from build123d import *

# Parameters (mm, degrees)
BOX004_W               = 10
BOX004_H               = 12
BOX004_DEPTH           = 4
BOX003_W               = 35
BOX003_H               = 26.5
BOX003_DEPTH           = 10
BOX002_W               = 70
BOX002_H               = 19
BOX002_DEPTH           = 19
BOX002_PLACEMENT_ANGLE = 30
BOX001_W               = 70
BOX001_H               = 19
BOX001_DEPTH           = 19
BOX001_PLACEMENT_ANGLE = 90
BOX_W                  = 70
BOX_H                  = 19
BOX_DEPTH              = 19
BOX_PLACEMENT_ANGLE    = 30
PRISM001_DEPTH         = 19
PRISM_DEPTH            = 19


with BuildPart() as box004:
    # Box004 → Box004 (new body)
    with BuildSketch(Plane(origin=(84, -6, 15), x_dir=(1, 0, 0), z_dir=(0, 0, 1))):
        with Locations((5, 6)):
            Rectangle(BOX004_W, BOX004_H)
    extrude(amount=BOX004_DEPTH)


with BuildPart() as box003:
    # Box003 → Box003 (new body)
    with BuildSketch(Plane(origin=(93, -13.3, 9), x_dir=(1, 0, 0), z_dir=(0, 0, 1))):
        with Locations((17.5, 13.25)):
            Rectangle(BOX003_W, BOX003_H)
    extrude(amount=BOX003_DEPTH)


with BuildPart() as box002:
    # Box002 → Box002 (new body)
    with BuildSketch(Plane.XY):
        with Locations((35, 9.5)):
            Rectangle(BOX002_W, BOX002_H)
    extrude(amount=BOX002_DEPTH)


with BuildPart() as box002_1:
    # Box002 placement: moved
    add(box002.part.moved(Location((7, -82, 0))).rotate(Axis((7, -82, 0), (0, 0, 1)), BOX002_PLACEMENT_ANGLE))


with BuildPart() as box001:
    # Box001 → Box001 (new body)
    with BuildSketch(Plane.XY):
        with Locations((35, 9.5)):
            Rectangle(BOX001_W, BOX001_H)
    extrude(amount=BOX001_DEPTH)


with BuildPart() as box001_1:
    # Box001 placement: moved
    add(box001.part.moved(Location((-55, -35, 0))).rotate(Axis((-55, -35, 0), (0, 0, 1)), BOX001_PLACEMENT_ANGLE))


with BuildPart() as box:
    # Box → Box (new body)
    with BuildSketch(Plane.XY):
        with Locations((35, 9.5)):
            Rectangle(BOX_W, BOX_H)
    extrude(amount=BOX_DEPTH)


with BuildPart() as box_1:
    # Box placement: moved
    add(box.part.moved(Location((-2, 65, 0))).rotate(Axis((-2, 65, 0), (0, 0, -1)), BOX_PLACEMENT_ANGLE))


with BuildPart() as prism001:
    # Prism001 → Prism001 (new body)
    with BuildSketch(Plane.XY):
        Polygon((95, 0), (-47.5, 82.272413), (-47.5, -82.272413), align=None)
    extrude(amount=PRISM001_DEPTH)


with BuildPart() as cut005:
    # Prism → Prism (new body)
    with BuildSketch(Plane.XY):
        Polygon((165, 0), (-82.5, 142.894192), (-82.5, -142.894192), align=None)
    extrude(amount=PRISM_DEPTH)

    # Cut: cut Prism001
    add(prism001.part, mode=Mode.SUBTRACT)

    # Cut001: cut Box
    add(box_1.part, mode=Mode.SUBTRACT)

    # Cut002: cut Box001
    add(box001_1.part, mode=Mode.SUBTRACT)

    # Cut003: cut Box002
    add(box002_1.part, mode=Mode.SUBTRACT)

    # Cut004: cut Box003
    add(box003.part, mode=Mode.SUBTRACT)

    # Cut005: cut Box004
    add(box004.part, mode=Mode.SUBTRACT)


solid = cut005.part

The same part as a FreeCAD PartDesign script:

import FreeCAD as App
import Part
import Sketcher
Q = App.Units.Quantity

doc = App.newDocument("Part")
body = doc.addObject("PartDesign::Body", "Body")

sketch1 = doc.addObject("Sketcher::SketchObject", "Sketch")
body.addObject(sketch1)
sketch1.AttachmentSupport = (doc.XY_Plane, [""])
sketch1.MapMode = "FlatFace"
sketch1.AttachmentOffset = App.Placement(App.Vector(0, 0, 15), App.Rotation())
sketch1.addGeometry([
    Part.LineSegment(App.Vector(84, 6, 0), App.Vector(84, -6, 0)),
    Part.LineSegment(App.Vector(84, -6, 0), App.Vector(94, -6, 0)),
    Part.LineSegment(App.Vector(94, -6, 0), App.Vector(94, 6, 0)),
    Part.LineSegment(App.Vector(94, 6, 0), App.Vector(84, 6, 0)),
], False)
sketch1.addConstraint([
    Sketcher.Constraint("Coincident", 0, 2, 1, 1),
    Sketcher.Constraint("Coincident", 1, 2, 2, 1),
    Sketcher.Constraint("Coincident", 2, 2, 3, 1),
    Sketcher.Constraint("Coincident", 3, 2, 0, 1),
    Sketcher.Constraint("Vertical", 0),
    Sketcher.Constraint("Horizontal", 1),
    Sketcher.Constraint("Vertical", 2),
    Sketcher.Constraint("Horizontal", 3),
    Sketcher.Constraint("DistanceX", 1, 1, 1, 2, 10.0),
    Sketcher.Constraint("DistanceY", 0, 2, 0, 1, 12.0),
    Sketcher.Constraint("DistanceX", -1, 1, 0, 2, 84.0),
    Sketcher.Constraint("DistanceY", 0, 2, -1, 1, 6.0),
])
pad1 = doc.addObject("PartDesign::Pad", "Pad")
body.addObject(pad1)
pad1.Profile = sketch1
pad1.Length = 4
body2 = doc.addObject("PartDesign::Body", "Body001")

sketch2 = doc.addObject("Sketcher::SketchObject", "Sketch001")
body2.addObject(sketch2)
sketch2.AttachmentSupport = (doc.getObject("XY_Plane001"), [""])
sketch2.MapMode = "FlatFace"
sketch2.AttachmentOffset = App.Placement(App.Vector(0, 0, 9), App.Rotation())
sketch2.addGeometry([
    Part.LineSegment(App.Vector(93, 13, 0), App.Vector(93, -13, 0)),
    Part.LineSegment(App.Vector(93, -13, 0), App.Vector(128, -13, 0)),
    Part.LineSegment(App.Vector(128, -13, 0), App.Vector(128, 13, 0)),
    Part.LineSegment(App.Vector(128, 13, 0), App.Vector(93, 13, 0)),
], False)
sketch2.addConstraint([
    Sketcher.Constraint("Coincident", 0, 2, 1, 1),
    Sketcher.Constraint("Coincident", 1, 2, 2, 1),
    Sketcher.Constraint("Coincident", 2, 2, 3, 1),
    Sketcher.Constraint("Coincident", 3, 2, 0, 1),
    Sketcher.Constraint("Vertical", 0),
    Sketcher.Constraint("Horizontal", 1),
    Sketcher.Constraint("Vertical", 2),
    Sketcher.Constraint("Horizontal", 3),
    Sketcher.Constraint("DistanceX", 1, 1, 1, 2, 35.0),
    Sketcher.Constraint("DistanceY", 0, 2, 0, 1, 26.5),
    Sketcher.Constraint("DistanceX", -1, 1, 0, 2, 93.0),
    Sketcher.Constraint("DistanceY", 0, 2, -1, 1, 13.3),
])
pad2 = doc.addObject("PartDesign::Pad", "Pad001")
body2.addObject(pad2)
pad2.Profile = sketch2
pad2.Length = 10
body3 = doc.addObject("PartDesign::Body", "Body002")

sketch3 = doc.addObject("Sketcher::SketchObject", "Sketch002")
body3.addObject(sketch3)
sketch3.AttachmentSupport = (doc.getObject("XY_Plane002"), [""])
sketch3.MapMode = "FlatFace"
sketch3.addGeometry([
    Part.LineSegment(App.Vector(0, 19, 0), App.Vector(0, 0, 0)),
    Part.LineSegment(App.Vector(0, 0, 0), App.Vector(70, 0, 0)),
    Part.LineSegment(App.Vector(70, 0, 0), App.Vector(70, 19, 0)),
    Part.LineSegment(App.Vector(70, 19, 0), App.Vector(0, 19, 0)),
], False)
sketch3.addConstraint([
    Sketcher.Constraint("Coincident", 0, 2, 1, 1),
    Sketcher.Constraint("Coincident", 1, 2, 2, 1),
    Sketcher.Constraint("Coincident", 2, 2, 3, 1),
    Sketcher.Constraint("Coincident", 3, 2, 0, 1),
    Sketcher.Constraint("Vertical", 0),
    Sketcher.Constraint("Horizontal", 1),
    Sketcher.Constraint("Vertical", 2),
    Sketcher.Constraint("Horizontal", 3),
    Sketcher.Constraint("Coincident", 0, 2, -1, 1),
    Sketcher.Constraint("DistanceX", 1, 1, 1, 2, 70.0),
    Sketcher.Constraint("DistanceY", 0, 2, 0, 1, 19.0),
])
pad3 = doc.addObject("PartDesign::Pad", "Pad002")
body3.addObject(pad3)
pad3.Profile = sketch3
pad3.Length = 19
body4 = doc.addObject("PartDesign::Body", "Body003")
doc.recompute()

body3.Placement = App.Placement(App.Vector(7, -82, 0), App.Rotation(App.Vector(0, 0, 1), 30))
boolean = doc.addObject("PartDesign::Boolean", "Boolean")
body4.addObject(boolean)
boolean.Type = "Fuse"
boolean.addObjects([body3])
body5 = doc.addObject("PartDesign::Body", "Body004")

sketch4 = doc.addObject("Sketcher::SketchObject", "Sketch003")
body5.addObject(sketch4)
sketch4.AttachmentSupport = (doc.getObject("XY_Plane004"), [""])
sketch4.MapMode = "FlatFace"
sketch4.addGeometry([
    Part.LineSegment(App.Vector(0, 19, 0), App.Vector(0, 0, 0)),
    Part.LineSegment(App.Vector(0, 0, 0), App.Vector(70, 0, 0)),
    Part.LineSegment(App.Vector(70, 0, 0), App.Vector(70, 19, 0)),
    Part.LineSegment(App.Vector(70, 19, 0), App.Vector(0, 19, 0)),
], False)
sketch4.addConstraint([
    Sketcher.Constraint("Coincident", 0, 2, 1, 1),
    Sketcher.Constraint("Coincident", 1, 2, 2, 1),
    Sketcher.Constraint("Coincident", 2, 2, 3, 1),
    Sketcher.Constraint("Coincident", 3, 2, 0, 1),
    Sketcher.Constraint("Vertical", 0),
    Sketcher.Constraint("Horizontal", 1),
    Sketcher.Constraint("Vertical", 2),
    Sketcher.Constraint("Horizontal", 3),
    Sketcher.Constraint("Coincident", 0, 2, -1, 1),
    Sketcher.Constraint("DistanceX", 1, 1, 1, 2, 70.0),
    Sketcher.Constraint("DistanceY", 0, 2, 0, 1, 19.0),
])
pad4 = doc.addObject("PartDesign::Pad", "Pad003")
body5.addObject(pad4)
pad4.Profile = sketch4
pad4.Length = 19
body6 = doc.addObject("PartDesign::Body", "Body005")
doc.recompute()

body5.Placement = App.Placement(App.Vector(-55, -35, 0), App.Rotation(App.Vector(0, 0, 1), 90))
boolean2 = doc.addObject("PartDesign::Boolean", "Boolean001")
body6.addObject(boolean2)
boolean2.Type = "Fuse"
boolean2.addObjects([body5])
body7 = doc.addObject("PartDesign::Body", "Body006")

sketch5 = doc.addObject("Sketcher::SketchObject", "Sketch004")
body7.addObject(sketch5)
sketch5.AttachmentSupport = (doc.getObject("XY_Plane006"), [""])
sketch5.MapMode = "FlatFace"
sketch5.addGeometry([
    Part.LineSegment(App.Vector(0, 19, 0), App.Vector(0, 0, 0)),
    Part.LineSegment(App.Vector(0, 0, 0), App.Vector(70, 0, 0)),
    Part.LineSegment(App.Vector(70, 0, 0), App.Vector(70, 19, 0)),
    Part.LineSegment(App.Vector(70, 19, 0), App.Vector(0, 19, 0)),
], False)
sketch5.addConstraint([
    Sketcher.Constraint("Coincident", 0, 2, 1, 1),
    Sketcher.Constraint("Coincident", 1, 2, 2, 1),
    Sketcher.Constraint("Coincident", 2, 2, 3, 1),
    Sketcher.Constraint("Coincident", 3, 2, 0, 1),
    Sketcher.Constraint("Vertical", 0),
    Sketcher.Constraint("Horizontal", 1),
    Sketcher.Constraint("Vertical", 2),
    Sketcher.Constraint("Horizontal", 3),
    Sketcher.Constraint("Coincident", 0, 2, -1, 1),
    Sketcher.Constraint("DistanceX", 1, 1, 1, 2, 70.0),
    Sketcher.Constraint("DistanceY", 0, 2, 0, 1, 19.0),
])
pad5 = doc.addObject("PartDesign::Pad", "Pad004")
body7.addObject(pad5)
pad5.Profile = sketch5
pad5.Length = 19
body8 = doc.addObject("PartDesign::Body", "Body007")
doc.recompute()

body7.Placement = App.Placement(App.Vector(-2, 65, 0), App.Rotation(App.Vector(0, 0, -1), 30))
boolean3 = doc.addObject("PartDesign::Boolean", "Boolean002")
body8.addObject(boolean3)
boolean3.Type = "Fuse"
boolean3.addObjects([body7])
body9 = doc.addObject("PartDesign::Body", "Body008")

sketch6 = doc.addObject("Sketcher::SketchObject", "Sketch005")
body9.addObject(sketch6)
sketch6.AttachmentSupport = (doc.getObject("XY_Plane008"), [""])
sketch6.MapMode = "FlatFace"
sketch6.addGeometry([
    Part.LineSegment(App.Vector(95, 0, 0), App.Vector(-48, 82, 0)),
    Part.LineSegment(App.Vector(-48, 82, 0), App.Vector(-48, -82, 0)),
    Part.LineSegment(App.Vector(-48, -82, 0), App.Vector(95, 0, 0)),
], False)
sketch6.addConstraint([
    Sketcher.Constraint("Coincident", 0, 2, 1, 1),
    Sketcher.Constraint("Coincident", 1, 2, 2, 1),
    Sketcher.Constraint("Coincident", 2, 2, 0, 1),
    Sketcher.Constraint("Vertical", 1),
    Sketcher.Constraint("PointOnObject", 2, 2, -1),
    Sketcher.Constraint("Equal", 0, 2),
    Sketcher.Constraint("Angle", 0, Q("150 deg")),
    Sketcher.Constraint("DistanceX", -1, 1, 2, 2, 95.0),
    Sketcher.Constraint("DistanceX", 0, 2, -1, 1, 47.5),
])
pad6 = doc.addObject("PartDesign::Pad", "Pad005")
body9.addObject(pad6)
pad6.Profile = sketch6
pad6.Length = 19
body10 = doc.addObject("PartDesign::Body", "Body009")

sketch7 = doc.addObject("Sketcher::SketchObject", "Sketch006")
body10.addObject(sketch7)
sketch7.AttachmentSupport = (doc.getObject("XY_Plane009"), [""])
sketch7.MapMode = "FlatFace"
sketch7.addGeometry([
    Part.LineSegment(App.Vector(165, 0, 0), App.Vector(-82, 143, 0)),
    Part.LineSegment(App.Vector(-82, 143, 0), App.Vector(-82, -143, 0)),
    Part.LineSegment(App.Vector(-82, -143, 0), App.Vector(165, 0, 0)),
], False)
sketch7.addConstraint([
    Sketcher.Constraint("Coincident", 0, 2, 1, 1),
    Sketcher.Constraint("Coincident", 1, 2, 2, 1),
    Sketcher.Constraint("Coincident", 2, 2, 0, 1),
    Sketcher.Constraint("Vertical", 1),
    Sketcher.Constraint("PointOnObject", 2, 2, -1),
    Sketcher.Constraint("Equal", 0, 2),
    Sketcher.Constraint("Angle", 0, Q("150 deg")),
    Sketcher.Constraint("DistanceX", -1, 1, 2, 2, 165.0),
    Sketcher.Constraint("DistanceX", 0, 2, -1, 1, 82.5),
])
pad7 = doc.addObject("PartDesign::Pad", "Pad006")
body10.addObject(pad7)
pad7.Profile = sketch7
pad7.Length = 19
doc.recompute()

boolean4 = doc.addObject("PartDesign::Boolean", "Boolean003")
body10.addObject(boolean4)
boolean4.Type = "Cut"
boolean4.addObjects([body9])
doc.recompute()

boolean5 = doc.addObject("PartDesign::Boolean", "Boolean004")
body10.addObject(boolean5)
boolean5.Type = "Cut"
boolean5.addObjects([body8])
doc.recompute()

boolean6 = doc.addObject("PartDesign::Boolean", "Boolean005")
body10.addObject(boolean6)
boolean6.Type = "Cut"
boolean6.addObjects([body6])
doc.recompute()

boolean7 = doc.addObject("PartDesign::Boolean", "Boolean006")
body10.addObject(boolean7)
boolean7.Type = "Cut"
boolean7.addObjects([body4])
doc.recompute()

boolean8 = doc.addObject("PartDesign::Boolean", "Boolean007")
body10.addObject(boolean8)
boolean8.Type = "Cut"
boolean8.addObjects([body2])
doc.recompute()

boolean9 = doc.addObject("PartDesign::Boolean", "Boolean008")
body10.addObject(boolean9)
boolean9.Type = "Cut"
boolean9.addObjects([body])

doc.recompute()
